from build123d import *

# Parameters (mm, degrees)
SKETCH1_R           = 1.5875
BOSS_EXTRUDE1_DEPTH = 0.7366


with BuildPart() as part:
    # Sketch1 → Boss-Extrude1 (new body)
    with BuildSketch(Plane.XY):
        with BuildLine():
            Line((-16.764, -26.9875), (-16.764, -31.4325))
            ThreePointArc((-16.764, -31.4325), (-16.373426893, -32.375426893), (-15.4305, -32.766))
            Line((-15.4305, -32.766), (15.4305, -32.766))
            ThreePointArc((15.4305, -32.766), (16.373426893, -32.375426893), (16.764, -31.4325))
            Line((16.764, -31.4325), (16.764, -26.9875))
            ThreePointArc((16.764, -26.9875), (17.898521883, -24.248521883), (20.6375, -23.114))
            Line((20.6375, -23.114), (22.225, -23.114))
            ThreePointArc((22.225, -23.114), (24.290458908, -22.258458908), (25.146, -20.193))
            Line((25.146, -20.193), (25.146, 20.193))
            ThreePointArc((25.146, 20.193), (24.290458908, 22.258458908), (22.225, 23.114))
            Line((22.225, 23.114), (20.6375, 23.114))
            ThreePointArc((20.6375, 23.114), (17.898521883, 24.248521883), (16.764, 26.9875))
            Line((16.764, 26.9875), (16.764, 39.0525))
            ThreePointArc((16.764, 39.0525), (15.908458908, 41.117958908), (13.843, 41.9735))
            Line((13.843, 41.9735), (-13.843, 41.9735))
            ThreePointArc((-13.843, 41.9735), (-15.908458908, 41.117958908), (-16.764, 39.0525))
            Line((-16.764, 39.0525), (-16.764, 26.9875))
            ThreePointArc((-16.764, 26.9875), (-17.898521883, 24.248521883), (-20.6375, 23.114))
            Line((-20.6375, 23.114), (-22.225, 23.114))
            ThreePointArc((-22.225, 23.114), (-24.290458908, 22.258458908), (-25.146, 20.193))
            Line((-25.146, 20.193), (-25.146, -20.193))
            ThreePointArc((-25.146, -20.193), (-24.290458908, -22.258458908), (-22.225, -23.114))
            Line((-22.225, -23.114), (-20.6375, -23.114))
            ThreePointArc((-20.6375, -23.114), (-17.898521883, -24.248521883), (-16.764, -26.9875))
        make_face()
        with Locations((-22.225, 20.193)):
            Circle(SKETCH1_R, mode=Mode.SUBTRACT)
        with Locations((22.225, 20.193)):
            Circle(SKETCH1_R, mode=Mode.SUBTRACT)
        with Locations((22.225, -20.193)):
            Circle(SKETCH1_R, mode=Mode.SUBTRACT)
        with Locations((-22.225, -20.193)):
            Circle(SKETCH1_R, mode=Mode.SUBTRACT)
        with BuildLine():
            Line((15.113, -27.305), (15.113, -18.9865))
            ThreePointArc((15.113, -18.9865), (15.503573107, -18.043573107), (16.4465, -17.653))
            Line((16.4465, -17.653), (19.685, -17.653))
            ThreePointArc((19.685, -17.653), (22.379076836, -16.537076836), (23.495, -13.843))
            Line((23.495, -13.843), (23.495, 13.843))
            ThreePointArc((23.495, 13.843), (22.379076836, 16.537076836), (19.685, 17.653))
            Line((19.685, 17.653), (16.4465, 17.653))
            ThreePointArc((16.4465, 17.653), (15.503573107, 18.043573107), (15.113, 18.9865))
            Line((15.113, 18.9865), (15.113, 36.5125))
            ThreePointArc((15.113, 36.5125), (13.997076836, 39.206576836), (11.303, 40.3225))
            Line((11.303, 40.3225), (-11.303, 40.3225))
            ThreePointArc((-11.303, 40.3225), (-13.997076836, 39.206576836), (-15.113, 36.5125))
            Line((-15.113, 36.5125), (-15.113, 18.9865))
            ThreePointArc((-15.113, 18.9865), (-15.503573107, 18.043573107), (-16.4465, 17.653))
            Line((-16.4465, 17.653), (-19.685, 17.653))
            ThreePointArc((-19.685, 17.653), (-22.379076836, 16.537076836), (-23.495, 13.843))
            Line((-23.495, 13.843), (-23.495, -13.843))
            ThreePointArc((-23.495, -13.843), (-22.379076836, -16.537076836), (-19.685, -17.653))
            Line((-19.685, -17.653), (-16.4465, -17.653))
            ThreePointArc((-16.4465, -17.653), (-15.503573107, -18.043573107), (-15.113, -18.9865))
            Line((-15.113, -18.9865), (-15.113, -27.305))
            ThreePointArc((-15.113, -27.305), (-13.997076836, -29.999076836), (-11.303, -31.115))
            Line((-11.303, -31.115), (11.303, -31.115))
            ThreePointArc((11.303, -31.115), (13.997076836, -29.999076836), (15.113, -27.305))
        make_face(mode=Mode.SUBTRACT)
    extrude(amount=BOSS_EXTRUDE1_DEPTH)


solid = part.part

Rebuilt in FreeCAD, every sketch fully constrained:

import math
import FreeCAD as App
import Part
import Sketcher
Q = App.Units.Quantity

doc = App.newDocument("Part")
body = doc.addObject("PartDesign::Body", "Body")

# Sketch on XY plane
sketch1 = body.newObject("Sketcher::SketchObject", "Sketch")
sketch1.AttachmentSupport = (doc.getObject("XY_Plane"), [""])
sketch1.MapMode = "FlatFace"
sketch1.addGeometry([
    Part.LineSegment(App.Vector(-16.8, -27, 0), App.Vector(-16.8, -31.4, 0)),  # 0
    Part.ArcOfCircle(Part.Circle(App.Vector(-15.4, -31.4, 0), App.Vector(0, 0, 1), 1.3), math.radians(180), math.radians(270)),  # 1
    Part.LineSegment(App.Vector(-15.4, -32.8, 0), App.Vector(15.4, -32.8, 0)),  # 2
    Part.ArcOfCircle(Part.Circle(App.Vector(15.4, -31.4, 0), App.Vector(0, 0, 1), 1.3), math.radians(-90), math.radians(0)),  # 3
    Part.LineSegment(App.Vector(16.8, -31.4, 0), App.Vector(16.8, -27, 0)),  # 4
    Part.ArcOfCircle(Part.Circle(App.Vector(20.6, -27, 0), App.Vector(0, 0, 1), 3.9), math.radians(90), math.radians(180)),  # 5
    Part.LineSegment(App.Vector(20.6, -23.1, 0), App.Vector(22.2, -23.1, 0)),  # 6
    Part.ArcOfCircle(Part.Circle(App.Vector(22.2, -20.2, 0), App.Vector(0, 0, 1), 2.9), math.radians(-90), math.radians(0)),  # 7
    Part.LineSegment(App.Vector(25.1, -20.2, 0), App.Vector(25.1, 20.2, 0)),  # 8
    Part.ArcOfCircle(Part.Circle(App.Vector(22.2, 20.2, 0), App.Vector(0, 0, 1), 2.9), math.radians(0), math.radians(90)),  # 9
    Part.LineSegment(App.Vector(22.2, 23.1, 0), App.Vector(20.6, 23.1, 0)),  # 10
    Part.ArcOfCircle(Part.Circle(App.Vector(20.6, 27, 0), App.Vector(0, 0, 1), 3.9), math.radians(180), math.radians(270)),  # 11
    Part.LineSegment(App.Vector(16.8, 27, 0), App.Vector(16.8, 39.1, 0)),  # 12
    Part.ArcOfCircle(Part.Circle(App.Vector(13.8, 39.1, 0), App.Vector(0, 0, 1), 2.9), math.radians(0), math.radians(90)),  # 13
    Part.LineSegment(App.Vector(13.8, 42, 0), App.Vector(-13.8, 42, 0)),  # 14
    Part.ArcOfCircle(Part.Circle(App.Vector(-13.8, 39.1, 0), App.Vector(0, 0, 1), 2.9), math.radians(90), math.radians(180)),  # 15
    Part.LineSegment(App.Vector(-16.8, 39.1, 0), App.Vector(-16.8, 27, 0)),  # 16
    Part.ArcOfCircle(Part.Circle(App.Vector(-20.6, 27, 0), App.Vector(0, 0, 1), 3.9), math.radians(-90), math.radians(0)),  # 17
    Part.LineSegment(App.Vector(-20.6, 23.1, 0), App.Vector(-22.2, 23.1, 0)),  # 18
    Part.ArcOfCircle(Part.Circle(App.Vector(-22.2, 20.2, 0), App.Vector(0, 0, 1), 2.9), math.radians(90), math.radians(180)),  # 19
    Part.LineSegment(App.Vector(-25.1, 20.2, 0), App.Vector(-25.1, -20.2, 0)),  # 20
    Part.ArcOfCircle(Part.Circle(App.Vector(-22.2, -20.2, 0), App.Vector(0, 0, 1), 2.9), math.radians(180), math.radians(270)),  # 21
    Part.LineSegment(App.Vector(-22.2, -23.1, 0), App.Vector(-20.6, -23.1, 0)),  # 22
    Part.ArcOfCircle(Part.Circle(App.Vector(-20.6, -27, 0), App.Vector(0, 0, 1), 3.9), math.radians(0), math.radians(90)),  # 23
    Part.Circle(App.Vector(-22.2, -20.2, 0), App.Vector(0, 0, 1), 1.6),  # 24
    Part.Circle(App.Vector(22.2, -20.2, 0), App.Vector(0, 0, 1), 1.6),  # 25
    Part.Circle(App.Vector(-22.2, 20.2, 0), App.Vector(0, 0, 1), 1.6),  # 26
    Part.LineSegment(App.Vector(15.1, -19, 0), App.Vector(15.1, -27.3, 0)),  # 27
    Part.ArcOfCircle(Part.Circle(App.Vector(11.3, -27.3, 0), App.Vector(0, 0, 1), 3.8), math.radians(-90), math.radians(0)),  # 28
    Part.LineSegment(App.Vector(11.3, -31.1, 0), App.Vector(-11.3, -31.1, 0)),  # 29
    Part.ArcOfCircle(Part.Circle(App.Vector(-11.3, -27.3, 0), App.Vector(0, 0, 1), 3.8), math.radians(-180), math.radians(-90)),  # 30
    Part.LineSegment(App.Vector(-15.1, -27.3, 0), App.Vector(-15.1, -19, 0)),  # 31
    Part.ArcOfCircle(Part.Circle(App.Vector(-16.4, -19, 0), App.Vector(0, 0, 1), 1.3), math.radians(0), math.radians(90)),  # 32
    Part.LineSegment(App.Vector(-16.4, -17.7, 0), App.Vector(-19.7, -17.7, 0)),  # 33
    Part.ArcOfCircle(Part.Circle(App.Vector(-19.7, -13.8, 0), App.Vector(0, 0, 1), 3.8), math.radians(-180), math.radians(-90)),  # 34
    Part.LineSegment(App.Vector(-23.5, -13.8, 0), App.Vector(-23.5, 13.8, 0)),  # 35
    Part.ArcOfCircle(Part.Circle(App.Vector(-19.7, 13.8, 0), App.Vector(0, 0, 1), 3.8), math.radians(90), math.radians(180)),  # 36
    Part.LineSegment(App.Vector(-19.7, 17.7, 0), App.Vector(-16.4, 17.7, 0)),  # 37
    Part.ArcOfCircle(Part.Circle(App.Vector(-16.4, 19, 0), App.Vector(0, 0, 1), 1.3), math.radians(-90), math.radians(0)),  # 38
    Part.LineSegment(App.Vector(-15.1, 19, 0), App.Vector(-15.1, 36.5, 0)),  # 39
    Part.ArcOfCircle(Part.Circle(App.Vector(-11.3, 36.5, 0), App.Vector(0, 0, 1), 3.8), math.radians(90), math.radians(180)),  # 40
    Part.LineSegment(App.Vector(-11.3, 40.3, 0), App.Vector(11.3, 40.3, 0)),  # 41
    Part.ArcOfCircle(Part.Circle(App.Vector(11.3, 36.5, 0), App.Vector(0, 0, 1), 3.8), math.radians(0), math.radians(90)),  # 42
    Part.LineSegment(App.Vector(15.1, 36.5, 0), App.Vector(15.1, 19, 0)),  # 43
    Part.ArcOfCircle(Part.Circle(App.Vector(16.4, 19, 0), App.Vector(0, 0, 1), 1.3), math.radians(180), math.radians(270)),  # 44
    Part.LineSegment(App.Vector(16.4, 17.7, 0), App.Vector(19.7, 17.7, 0)),  # 45
    Part.ArcOfCircle(Part.Circle(App.Vector(19.7, 13.8, 0), App.Vector(0, 0, 1), 3.8), math.radians(0), math.radians(90)),  # 46
    Part.LineSegment(App.Vector(23.5, 13.8, 0), App.Vector(23.5, -13.8, 0)),  # 47
    Part.ArcOfCircle(Part.Circle(App.Vector(19.7, -13.8, 0), App.Vector(0, 0, 1), 3.8), math.radians(-90), math.radians(0)),  # 48
    Part.LineSegment(App.Vector(19.7, -17.7, 0), App.Vector(16.4, -17.7, 0)),  # 49
    Part.ArcOfCircle(Part.Circle(App.Vector(16.4, -19, 0), App.Vector(0, 0, 1), 1.3), math.radians(90), math.radians(180)),  # 50
    Part.Circle(App.Vector(22.2, 20.2, 0), App.Vector(0, 0, 1), 1.6),  # 51
], False)
sketch1.addConstraint([
    Sketcher.Constraint("Tangent", 0, 2, 1, 1),
    Sketcher.Constraint("Tangent", 1, 2, 2, 1),
    Sketcher.Constraint("Tangent", 2, 2, 3, 1),
    Sketcher.Constraint("Tangent", 3, 2, 4, 1),
    Sketcher.Constraint("Tangent", 4, 2, 5, 2),
    Sketcher.Constraint("Tangent", 5, 1, 6, 1),
    Sketcher.Constraint("Tangent", 6, 2, 7, 1),
    Sketcher.Constraint("Tangent", 7, 2, 8, 1),
    Sketcher.Constraint("Tangent", 8, 2, 9, 1),
    Sketcher.Constraint("Tangent", 9, 2, 10, 1),
    Sketcher.Constraint("Tangent", 10, 2, 11, 2),
    Sketcher.Constraint("Tangent", 11, 1, 12, 1),
    Sketcher.Constraint("Tangent", 12, 2, 13, 1),
    Sketcher.Constraint("Tangent", 13, 2, 14, 1),
    Sketcher.Constraint("Tangent", 14, 2, 15, 1),
    Sketcher.Constraint("Tangent", 15, 2, 16, 1),
    Sketcher.Constraint("Tangent", 16, 2, 17, 2),
    Sketcher.Constraint("Tangent", 17, 1, 18, 1),
    Sketcher.Constraint("Tangent", 18, 2, 19, 1),
    Sketcher.Constraint("Tangent", 19, 2, 20, 1),
    Sketcher.Constraint("Tangent", 20, 2, 21, 1),
    Sketcher.Constraint("Tangent", 21, 2, 22, 1),
    Sketcher.Constraint("Tangent", 22, 2, 23, 2),
    Sketcher.Constraint("Tangent", 23, 1, 0, 1),
    Sketcher.Constraint("Tangent", 27, 2, 28, 2),
    Sketcher.Constraint("Tangent", 28, 1, 29, 1),
    Sketcher.Constraint("Tangent", 29, 2, 30, 2),
    Sketcher.Constraint("Tangent", 30, 1, 31, 1),
    Sketcher.Constraint("Tangent", 31, 2, 32, 1),
    Sketcher.Constraint("Tangent", 32, 2, 33, 1),
    Sketcher.Constraint("Tangent", 33, 2, 34, 2),
    Sketcher.Constraint("Tangent", 34, 1, 35, 1),
    Sketcher.Constraint("Tangent", 35, 2, 36, 2),
    Sketcher.Constraint("Tangent", 36, 1, 37, 1),
    Sketcher.Constraint("Tangent", 37, 2, 38, 1),
    Sketcher.Constraint("Tangent", 38, 2, 39, 1),
    Sketcher.Constraint("Tangent", 39, 2, 40, 2),
    Sketcher.Constraint("Tangent", 40, 1, 41, 1),
    Sketcher.Constraint("Tangent", 41, 2, 42, 2),
    Sketcher.Constraint("Tangent", 42, 1, 43, 1),
    Sketcher.Constraint("Tangent", 43, 2, 44, 1),
    Sketcher.Constraint("Tangent", 44, 2, 45, 1),
    Sketcher.Constraint("Tangent", 45, 2, 46, 2),
    Sketcher.Constraint("Tangent", 46, 1, 47, 1),
    Sketcher.Constraint("Tangent", 47, 2, 48, 2),
    Sketcher.Constraint("Tangent", 48, 1, 49, 1),
    Sketcher.Constraint("Tangent", 49, 2, 50, 1),
    Sketcher.Constraint("Tangent", 50, 2, 27, 1),
    Sketcher.Constraint("Vertical", 0),
    Sketcher.Constraint("Horizontal", 2),
    Sketcher.Constraint("Vertical", 4),
    Sketcher.Constraint("Horizontal", 6),
    Sketcher.Constraint("Vertical", 8),
    Sketcher.Constraint("Horizontal", 10),
    Sketcher.Constraint("Vertical", 12),
    Sketcher.Constraint("Horizontal", 14),
    Sketcher.Constraint("Vertical", 16),
    Sketcher.Constraint("Horizontal", 18),
    Sketcher.Constraint("Vertical", 20),
    Sketcher.Constraint("Horizontal", 22),
    Sketcher.Constraint("Vertical", 27),
    Sketcher.Constraint("Horizontal", 29),
    Sketcher.Constraint("Vertical", 31),
    Sketcher.Constraint("Horizontal", 33),
    Sketcher.Constraint("Vertical", 35),
    Sketcher.Constraint("Horizontal", 37),
    Sketcher.Constraint("Vertical", 39),
    Sketcher.Constraint("Horizontal", 41),
    Sketcher.Constraint("Vertical", 43),
    Sketcher.Constraint("Horizontal", 45),
    Sketcher.Constraint("Vertical", 47),
    Sketcher.Constraint("Horizontal", 49),
    Sketcher.Constraint("Coincident", 24, 3, 21, 3),
    Sketcher.Constraint("Coincident", 25, 3, 7, 3),
    Sketcher.Constraint("Coincident", 26, 3, 19, 3),
    Sketcher.Constraint("Coincident", 51, 3, 9, 3),
    Sketcher.Constraint("Equal", 1, 3),
    Sketcher.Constraint("Equal", 7, 9),
    Sketcher.Constraint("Equal", 5, 11),
    Sketcher.Constraint("Equal", 9, 13),
    Sketcher.Constraint("Equal", 13, 15),
    Sketcher.Constraint("Equal", 11, 17),
    Sketcher.Constraint("Equal", 15, 19),
    Sketcher.Constraint("Equal", 19, 21),
    Sketcher.Constraint("Equal", 17, 23),
    Sketcher.Constraint("Equal", 24, 25),
    Sketcher.Constraint("Equal", 25, 26),
    Sketcher.Constraint("Equal", 28, 30),
    Sketcher.Constraint("Equal", 3, 32),
    Sketcher.Constraint("Equal", 30, 34),
    Sketcher.Constraint("Equal", 34, 36),
    Sketcher.Constraint("Equal", 32, 38),
    Sketcher.Constraint("Equal", 36, 40),
    Sketcher.Constraint("Equal", 40, 42),
    Sketcher.Constraint("Equal", 38, 44),
    Sketcher.Constraint("Equal", 42, 46),
    Sketcher.Constraint("Equal", 46, 48),
    Sketcher.Constraint("Equal", 44, 50),
    Sketcher.Constraint("Equal", 26, 51),
    Sketcher.Constraint("Symmetric", 5, 3, 17, 3, -1, 1),
    Sketcher.Constraint("Symmetric", 9, 3, 21, 3, -1, 1),
    Sketcher.Constraint("Symmetric", 32, 3, 44, 3, -1, 1),
    Sketcher.Constraint("Symmetric", 36, 3, 48, 3, -1, 1),
    Sketcher.Constraint("Symmetric", 11, 3, 17, 3, -2),
    Sketcher.Constraint("Symmetric", 38, 3, 44, 3, -2),
    Sketcher.Constraint("Vertical", 17, 3, 23, 3),
    Sketcher.Constraint("Vertical", 28, 3, 42, 3),
    Sketcher.Constraint("Equal", 14, 35),
    Sketcher.Constraint("Radius", 28, Q("0.15 in")),
    Sketcher.Constraint("Diameter", 24, Q("0.125 in")),
    Sketcher.Constraint("Radius", 7, Q("0.115 in")),
    Sketcher.Constraint("DistanceX", 14, 2, 14, 1, Q("1.09 in")),
    Sketcher.Constraint("DistanceX", 29, 2, 29, 1, Q("0.89 in")),
    Sketcher.Constraint("DistanceY", 8, 1, 8, 2, Q("1.59 in")),
    Sketcher.Constraint("DistanceY", 39, 1, 39, 2, Q("0.69 in")),
    Sketcher.Constraint("Radius", 1, Q("0.0525 in")),
    Sketcher.Constraint("Radius", 5, Q("0.1525 in")),
    Sketcher.Constraint("DistanceX", 6, 1, 6, 2, Q("0.0625 in")),
    Sketcher.Constraint("DistanceY", 0, 2, 0, 1, Q("0.175 in")),
    Sketcher.Constraint("DistanceY", 12, 1, 12, 2, Q("0.475 in")),
    Sketcher.Constraint("DistanceX", 33, 2, 33, 1, Q("0.1275 in")),
    Sketcher.Constraint("DistanceY", 27, 2, 27, 1, Q("0.3275 in")),
])
pad1 = body.newObject("PartDesign::Pad", "Pad")
pad1.Profile = sketch1
pad1.Length = Q("0.029 in")

doc.recompute()
